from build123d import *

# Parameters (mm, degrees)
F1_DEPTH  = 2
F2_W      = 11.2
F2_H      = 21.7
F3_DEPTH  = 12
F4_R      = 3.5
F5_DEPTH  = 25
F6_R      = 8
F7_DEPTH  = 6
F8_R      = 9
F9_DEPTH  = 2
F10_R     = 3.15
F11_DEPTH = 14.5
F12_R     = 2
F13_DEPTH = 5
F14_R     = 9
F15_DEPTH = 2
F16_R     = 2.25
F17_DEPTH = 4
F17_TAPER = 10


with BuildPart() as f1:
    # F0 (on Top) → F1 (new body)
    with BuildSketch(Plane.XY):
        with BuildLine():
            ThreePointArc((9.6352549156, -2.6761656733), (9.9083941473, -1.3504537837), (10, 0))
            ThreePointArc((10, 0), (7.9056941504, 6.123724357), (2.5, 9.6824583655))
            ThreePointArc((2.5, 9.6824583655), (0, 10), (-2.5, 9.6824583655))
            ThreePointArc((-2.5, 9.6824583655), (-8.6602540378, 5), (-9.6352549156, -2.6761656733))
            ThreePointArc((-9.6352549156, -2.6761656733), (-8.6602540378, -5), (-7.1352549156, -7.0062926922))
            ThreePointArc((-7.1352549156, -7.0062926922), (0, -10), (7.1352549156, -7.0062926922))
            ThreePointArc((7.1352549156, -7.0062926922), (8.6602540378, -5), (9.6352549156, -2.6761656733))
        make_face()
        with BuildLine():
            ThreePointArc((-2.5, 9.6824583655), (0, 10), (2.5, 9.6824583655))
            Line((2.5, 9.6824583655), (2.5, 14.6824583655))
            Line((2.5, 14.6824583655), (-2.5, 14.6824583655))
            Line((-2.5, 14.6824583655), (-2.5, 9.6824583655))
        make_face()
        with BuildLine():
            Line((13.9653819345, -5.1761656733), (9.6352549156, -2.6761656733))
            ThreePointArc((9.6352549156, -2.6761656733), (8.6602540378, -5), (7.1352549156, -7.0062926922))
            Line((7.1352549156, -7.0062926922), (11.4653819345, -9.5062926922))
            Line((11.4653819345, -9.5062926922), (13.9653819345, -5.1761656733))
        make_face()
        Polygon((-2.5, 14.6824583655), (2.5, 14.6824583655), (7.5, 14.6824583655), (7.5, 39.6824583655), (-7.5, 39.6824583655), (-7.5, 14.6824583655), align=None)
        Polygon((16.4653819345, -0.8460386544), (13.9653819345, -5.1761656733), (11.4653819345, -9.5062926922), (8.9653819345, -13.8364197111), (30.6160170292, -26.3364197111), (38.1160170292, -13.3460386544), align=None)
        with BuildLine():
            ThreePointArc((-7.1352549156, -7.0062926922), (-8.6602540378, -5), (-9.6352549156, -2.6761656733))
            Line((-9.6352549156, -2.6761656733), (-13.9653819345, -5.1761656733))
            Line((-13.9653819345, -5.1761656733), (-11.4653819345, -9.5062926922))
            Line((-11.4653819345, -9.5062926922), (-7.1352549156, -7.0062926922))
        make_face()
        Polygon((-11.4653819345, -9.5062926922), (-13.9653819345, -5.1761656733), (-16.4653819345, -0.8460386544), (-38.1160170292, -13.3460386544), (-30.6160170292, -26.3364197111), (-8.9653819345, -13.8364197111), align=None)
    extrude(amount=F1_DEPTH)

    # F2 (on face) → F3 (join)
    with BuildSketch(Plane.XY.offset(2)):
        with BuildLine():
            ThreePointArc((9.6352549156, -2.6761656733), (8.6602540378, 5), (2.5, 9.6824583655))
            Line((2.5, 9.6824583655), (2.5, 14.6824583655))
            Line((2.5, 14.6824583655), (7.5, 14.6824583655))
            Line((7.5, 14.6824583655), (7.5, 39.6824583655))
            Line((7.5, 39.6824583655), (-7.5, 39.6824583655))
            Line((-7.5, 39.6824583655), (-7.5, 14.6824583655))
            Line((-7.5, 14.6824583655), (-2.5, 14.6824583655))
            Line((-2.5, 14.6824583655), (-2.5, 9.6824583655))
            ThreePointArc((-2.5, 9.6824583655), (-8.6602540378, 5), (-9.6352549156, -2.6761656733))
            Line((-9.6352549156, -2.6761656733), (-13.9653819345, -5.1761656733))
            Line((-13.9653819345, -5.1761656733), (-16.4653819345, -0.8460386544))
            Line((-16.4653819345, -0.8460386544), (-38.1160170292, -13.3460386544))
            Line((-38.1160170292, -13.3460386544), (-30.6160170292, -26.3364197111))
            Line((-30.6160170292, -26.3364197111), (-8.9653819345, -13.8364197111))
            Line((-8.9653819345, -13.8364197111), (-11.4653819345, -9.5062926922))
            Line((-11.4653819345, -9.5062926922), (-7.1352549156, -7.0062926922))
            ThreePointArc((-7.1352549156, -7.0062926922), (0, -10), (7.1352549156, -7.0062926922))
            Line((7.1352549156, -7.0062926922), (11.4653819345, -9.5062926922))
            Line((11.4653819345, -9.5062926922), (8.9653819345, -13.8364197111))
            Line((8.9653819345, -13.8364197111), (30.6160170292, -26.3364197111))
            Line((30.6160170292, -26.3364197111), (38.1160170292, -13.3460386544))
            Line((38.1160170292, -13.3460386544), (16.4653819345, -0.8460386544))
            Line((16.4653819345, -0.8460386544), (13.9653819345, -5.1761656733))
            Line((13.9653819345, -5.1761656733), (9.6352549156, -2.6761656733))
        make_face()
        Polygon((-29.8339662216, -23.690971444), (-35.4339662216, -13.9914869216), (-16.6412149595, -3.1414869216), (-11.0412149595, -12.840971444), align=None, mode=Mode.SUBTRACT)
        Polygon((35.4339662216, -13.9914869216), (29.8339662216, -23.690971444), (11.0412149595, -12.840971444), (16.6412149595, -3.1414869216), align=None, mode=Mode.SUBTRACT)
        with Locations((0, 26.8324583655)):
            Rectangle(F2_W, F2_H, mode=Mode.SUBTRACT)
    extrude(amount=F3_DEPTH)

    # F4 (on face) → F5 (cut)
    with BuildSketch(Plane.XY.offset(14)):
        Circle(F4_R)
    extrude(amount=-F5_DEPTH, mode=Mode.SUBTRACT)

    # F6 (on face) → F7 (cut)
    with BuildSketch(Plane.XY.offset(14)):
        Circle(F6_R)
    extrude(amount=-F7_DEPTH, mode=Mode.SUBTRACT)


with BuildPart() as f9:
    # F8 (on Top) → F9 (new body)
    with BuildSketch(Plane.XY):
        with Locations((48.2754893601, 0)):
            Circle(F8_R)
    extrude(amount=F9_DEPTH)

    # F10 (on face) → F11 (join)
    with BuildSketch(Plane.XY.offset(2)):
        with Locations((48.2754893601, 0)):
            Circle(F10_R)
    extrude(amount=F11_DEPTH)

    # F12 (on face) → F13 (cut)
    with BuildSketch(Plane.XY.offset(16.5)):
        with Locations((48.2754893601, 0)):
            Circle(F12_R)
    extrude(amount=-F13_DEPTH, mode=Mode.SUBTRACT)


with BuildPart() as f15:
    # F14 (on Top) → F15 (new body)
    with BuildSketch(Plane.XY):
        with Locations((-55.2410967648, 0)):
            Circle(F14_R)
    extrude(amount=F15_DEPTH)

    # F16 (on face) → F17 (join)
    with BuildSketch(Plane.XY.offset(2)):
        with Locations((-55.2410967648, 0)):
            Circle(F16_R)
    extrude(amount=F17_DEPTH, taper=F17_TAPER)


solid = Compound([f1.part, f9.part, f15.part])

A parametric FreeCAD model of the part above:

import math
import FreeCAD as App
import Part
import Sketcher
from FreeCAD import Vector
Q = App.Units.Quantity


def add_polygon(sketch, points):
    """Adds a closed chain of lines whose ends are joined by coincident constraints."""
    first, n = sketch.GeometryCount, len(points)
    for a, b in zip(points, points[1:] + points[:1]):
        sketch.addGeometry(Part.LineSegment(App.Vector(*a, 0), App.Vector(*b, 0)), False)
    for i in range(n):
        sketch.addConstraint(Sketcher.Constraint("Coincident", first + i, 2, first + (i + 1) % n, 1))

doc = App.newDocument("Part")
body = doc.addObject("PartDesign::Body", "Body")

sketch1 = body.newObject("Sketcher::SketchObject", "Sketch")
sketch1.AttachmentSupport = (doc.getObject("XY_Plane"), [""])
sketch1.MapMode = "FlatFace"
sketch1.addGeometry([
    Part.ArcOfCircle(Part.Circle(Vector(0, 0, 0), Vector(0, 0, 1), 10), math.radians(-15.522488), math.radians(0)),
    Part.ArcOfCircle(Part.Circle(Vector(0, 0, 0), Vector(0, 0, 1), 10), math.radians(0), math.radians(75.522488)),
    Part.LineSegment(Vector(2.5, 9.682458, 0), Vector(2.5, 14.682458, 0)),
    Part.LineSegment(Vector(2.5, 14.682458, 0), Vector(7.5, 14.682458, 0)),
    Part.LineSegment(Vector(7.5, 14.682458, 0), Vector(7.5, 39.682458, 0)),
    Part.LineSegment(Vector(7.5, 39.682458, 0), Vector(-7.5, 39.682458, 0)),
    Part.LineSegment(Vector(-7.5, 39.682458, 0), Vector(-7.5, 14.682458, 0)),
    Part.LineSegment(Vector(-7.5, 14.682458, 0), Vector(-2.5, 14.682458, 0)),
    Part.LineSegment(Vector(-2.5, 14.682458, 0), Vector(-2.5, 9.682458, 0)),
    Part.ArcOfCircle(Part.Circle(Vector(0, 0, 0), Vector(0, 0, 1), 10), math.radians(104.477512), math.radians(195.522488)),
    Part.LineSegment(Vector(-9.635255, -2.676166, 0), Vector(-13.965382, -5.176166, 0)),
    Part.LineSegment(Vector(-13.965382, -5.176166, 0), Vector(-16.465382, -0.846039, 0)),
    Part.LineSegment(Vector(-16.465382, -0.846039, 0), Vector(-38.116017, -13.346039, 0)),
    Part.LineSegment(Vector(-38.116017, -13.346039, 0), Vector(-30.616017, -26.33642, 0)),
    Part.LineSegment(Vector(-30.616017, -26.33642, 0), Vector(-8.965382, -13.83642, 0)),
    Part.LineSegment(Vector(-8.965382, -13.83642, 0), Vector(-11.465382, -9.506293, 0)),
    Part.LineSegment(Vector(-11.465382, -9.506293, 0), Vector(-7.135255, -7.006293, 0)),
    Part.ArcOfCircle(Part.Circle(Vector(0, 0, 0), Vector(0, 0, 1), 10), math.radians(-135.522488), math.radians(-44.477512)),
    Part.LineSegment(Vector(7.135255, -7.006293, 0), Vector(11.465382, -9.506293, 0)),
    Part.LineSegment(Vector(11.465382, -9.506293, 0), Vector(8.965382, -13.83642, 0)),
    Part.LineSegment(Vector(8.965382, -13.83642, 0), Vector(30.616017, -26.33642, 0)),
    Part.LineSegment(Vector(30.616017, -26.33642, 0), Vector(38.116017, -13.346039, 0)),
    Part.LineSegment(Vector(38.116017, -13.346039, 0), Vector(16.465382, -0.846039, 0)),
    Part.LineSegment(Vector(16.465382, -0.846039, 0), Vector(13.965382, -5.176166, 0)),
    Part.LineSegment(Vector(13.965382, -5.176166, 0), Vector(9.635255, -2.676166, 0)),
], False)
sketch1.addConstraint([
    Sketcher.Constraint("Tangent", 0, 2, 1, 1),
    Sketcher.Constraint("Coincident", 1, 2, 2, 1),
    Sketcher.Constraint("Coincident", 2, 2, 3, 1),
    Sketcher.Constraint("Coincident", 3, 2, 4, 1),
    Sketcher.Constraint("Coincident", 4, 2, 5, 1),
    Sketcher.Constraint("Coincident", 5, 2, 6, 1),
    Sketcher.Constraint("Coincident", 6, 2, 7, 1),
    Sketcher.Constraint("Coincident", 7, 2, 8, 1),
    Sketcher.Constraint("Coincident", 8, 2, 9, 1),
    Sketcher.Constraint("Coincident", 9, 2, 10, 1),
    Sketcher.Constraint("Coincident", 10, 2, 11, 1),
    Sketcher.Constraint("Coincident", 11, 2, 12, 1),
    Sketcher.Constraint("Coincident", 12, 2, 13, 1),
    Sketcher.Constraint("Coincident", 13, 2, 14, 1),
    Sketcher.Constraint("Coincident", 14, 2, 15, 1),
    Sketcher.Constraint("Coincident", 15, 2, 16, 1),
    Sketcher.Constraint("Coincident", 16, 2, 17, 1),
    Sketcher.Constraint("Coincident", 17, 2, 18, 1),
    Sketcher.Constraint("Coincident", 18, 2, 19, 1),
    Sketcher.Constraint("Coincident", 19, 2, 20, 1),
    Sketcher.Constraint("Coincident", 20, 2, 21, 1),
    Sketcher.Constraint("Coincident", 21, 2, 22, 1),
    Sketcher.Constraint("Coincident", 22, 2, 23, 1),
    Sketcher.Constraint("Coincident", 23, 2, 24, 1),
    Sketcher.Constraint("Coincident", 24, 2, 0, 1),
    Sketcher.Constraint("Vertical", 2),
    Sketcher.Constraint("Horizontal", 3),
    Sketcher.Constraint("Vertical", 4),
    Sketcher.Constraint("Horizontal", 5),
    Sketcher.Constraint("Vertical", 6),
    Sketcher.Constraint("Horizontal", 7),
    Sketcher.Constraint("Vertical", 8),
    Sketcher.Constraint("Coincident", 0, 3, -1, 1),
    Sketcher.Constraint("Coincident", 9, 3, -1, 1),
    Sketcher.Constraint("Coincident", 17, 3, -1, 1),
    Sketcher.Constraint("Equal", 0, 1),
    Sketcher.Constraint("Equal", 1, 9),
    Sketcher.Constraint("Equal", 9, 17),
    Sketcher.Constraint("Symmetric", 3, 2, 6, 2, -2),
    Sketcher.Constraint("Symmetric", 15, 2, 18, 2, -2),
    Sketcher.Constraint("Symmetric", 14, 2, 19, 2, -2),
    Sketcher.Constraint("Symmetric", 13, 2, 20, 2, -2),
    Sketcher.Constraint("Symmetric", 12, 2, 21, 2, -2),
    Sketcher.Constraint("Symmetric", 11, 2, 22, 2, -2),
    Sketcher.Constraint("Symmetric", 10, 2, 23, 2, -2),
    Sketcher.Constraint("PointOnObject", 0, 2, -1),
    Sketcher.Constraint("Perpendicular", 10, 11),
    Sketcher.Constraint("Perpendicular", 11, 12),
    Sketcher.Constraint("Perpendicular", 12, 13),
    Sketcher.Constraint("Perpendicular", 13, 14),
    Sketcher.Constraint("Perpendicular", 14, 15),
    Sketcher.Constraint("Perpendicular", 15, 16),
    Sketcher.Constraint("Perpendicular", 18, 19),
    Sketcher.Constraint("Perpendicular", 23, 24),
    Sketcher.Constraint("Horizontal", 1, 2, 8, 2),
    Sketcher.Constraint("Equal", 7, 2),
    Sketcher.Constraint("Equal", 10, 11),
    Sketcher.Constraint("Equal", 12, 14),
    Sketcher.Constraint("Equal", 11, 15),
    Sketcher.Constraint("Equal", 15, 16),
    Sketcher.Constraint("Radius", 0, 10.0),
    Sketcher.Constraint("DistanceX", 3, 1, 3, 2, 5.0),
    Sketcher.Constraint("DistanceX", 5, 2, 5, 1, 15.0),
    Sketcher.Constraint("DistanceY", 4, 1, 4, 2, 25.0),
    Sketcher.Constraint("Angle", 10, Q("-150 deg")),
    Sketcher.Constraint("Distance", 10, 5.0),
    Sketcher.Constraint("Distance", 12, 25.0),
    Sketcher.Constraint("Distance", 13, 15.0),
])
pad1 = body.newObject("PartDesign::Pad", "Pad")
pad1.Profile = sketch1
pad1.Length = 2

sketch2 = body.newObject("Sketcher::SketchObject", "Sketch001")
sketch2.AttachmentSupport = (doc.getObject("XY_Plane"), [""])
sketch2.MapMode = "FlatFace"
sketch2.AttachmentOffset = App.Placement(Vector(0, 0, 2), App.Rotation())
sketch2.addGeometry(Part.ArcOfCircle(Part.Circle(Vector(0, 0, 0), Vector(0, 0, 1), 10), math.radians(-15.522488), math.radians(75.522488)), False)
sketch2.addGeometry(Part.LineSegment(Vector(2.5, 9.682458, 0), Vector(2.5, 14.682458, 0)), False)
sketch2.addGeometry(Part.LineSegment(Vector(2.5, 14.682458, 0), Vector(7.5, 14.682458, 0)), False)
sketch2.addGeometry(Part.LineSegment(Vector(7.5, 14.682458, 0), Vector(7.5, 39.682458, 0)), False)
sketch2.addGeometry(Part.LineSegment(Vector(7.5, 39.682458, 0), Vector(-7.5, 39.682458, 0)), False)
sketch2.addGeometry(Part.LineSegment(Vector(-7.5, 39.682458, 0), Vector(-7.5, 14.682458, 0)), False)
sketch2.addGeometry(Part.LineSegment(Vector(-7.5, 14.682458, 0), Vector(-2.5, 14.682458, 0)), False)
sketch2.addGeometry(Part.LineSegment(Vector(-2.5, 14.682458, 0), Vector(-2.5, 9.682458, 0)), False)
sketch2.addGeometry(Part.ArcOfCircle(Part.Circle(Vector(0, 0, 0), Vector(0, 0, 1), 10), math.radians(104.477512), math.radians(195.522488)), False)
sketch2.addGeometry(Part.LineSegment(Vector(-9.635255, -2.676166, 0), Vector(-13.965382, -5.176166, 0)), False)
sketch2.addGeometry(Part.LineSegment(Vector(-13.965382, -5.176166, 0), Vector(-16.465382, -0.846039, 0)), False)
sketch2.addGeometry(Part.LineSegment(Vector(-16.465382, -0.846039, 0), Vector(-38.116017, -13.346039, 0)), False)
sketch2.addGeometry(Part.LineSegment(Vector(-38.116017, -13.346039, 0), Vector(-30.616017, -26.33642, 0)), False)
sketch2.addGeometry(Part.LineSegment(Vector(-30.616017, -26.33642, 0), Vector(-8.965382, -13.83642, 0)), False)
sketch2.addGeometry(Part.LineSegment(Vector(-8.965382, -13.83642, 0), Vector(-11.465382, -9.506293, 0)), False)
sketch2.addGeometry(Part.LineSegment(Vector(-11.465382, -9.506293, 0), Vector(-7.135255, -7.006293, 0)), False)
sketch2.addGeometry(Part.ArcOfCircle(Part.Circle(Vector(0, 0, 0), Vector(0, 0, 1), 10), math.radians(-135.522488), math.radians(-44.477512)), False)
sketch2.addGeometry(Part.LineSegment(Vector(7.135255, -7.006293, 0), Vector(11.465382, -9.506293, 0)), False)
sketch2.addGeometry(Part.LineSegment(Vector(11.465382, -9.506293, 0), Vector(8.965382, -13.83642, 0)), False)
sketch2.addGeometry(Part.LineSegment(Vector(8.965382, -13.83642, 0), Vector(30.616017, -26.33642, 0)), False)
sketch2.addGeometry(Part.LineSegment(Vector(30.616017, -26.33642, 0), Vector(38.116017, -13.346039, 0)), False)
sketch2.addGeometry(Part.LineSegment(Vector(38.116017, -13.346039, 0), Vector(16.465382, -0.846039, 0)), False)
sketch2.addGeometry(Part.LineSegment(Vector(16.465382, -0.846039, 0), Vector(13.965382, -5.176166, 0)), False)
sketch2.addGeometry(Part.LineSegment(Vector(13.965382, -5.176166, 0), Vector(9.635255, -2.676166, 0)), False)
add_polygon(sketch2, [(-11.041215, -12.840971), (-29.833966, -23.690971), (-35.433966, -13.991487), (-16.641215, -3.141487)])
add_polygon(sketch2, [(16.641215, -3.141487), (35.433966, -13.991487), (29.833966, -23.690971), (11.041215, -12.840971)])
add_polygon(sketch2, [(5.6, 15.982458), (-5.6, 15.982458), (-5.6, 37.682458), (5.6, 37.682458)])
sketch2.addConstraint([
    Sketcher.Constraint("Coincident", 0, 2, 1, 1),
    Sketcher.Constraint("Coincident", 1, 2, 2, 1),
    Sketcher.Constraint("Coincident", 2, 2, 3, 1),
    Sketcher.Constraint("Coincident", 3, 2, 4, 1),
    Sketcher.Constraint("Coincident", 4, 2, 5, 1),
    Sketcher.Constraint("Coincident", 5, 2, 6, 1),
    Sketcher.Constraint("Coincident", 6, 2, 7, 1),
    Sketcher.Constraint("Coincident", 7, 2, 8, 1),
    Sketcher.Constraint("Coincident", 8, 2, 9, 1),
    Sketcher.Constraint("Coincident", 9, 2, 10, 1),
    Sketcher.Constraint("Coincident", 10, 2, 11, 1),
    Sketcher.Constraint("Coincident", 11, 2, 12, 1),
    Sketcher.Constraint("Coincident", 12, 2, 13, 1),
    Sketcher.Constraint("Coincident", 13, 2, 14, 1),
    Sketcher.Constraint("Coincident", 14, 2, 15, 1),
    Sketcher.Constraint("Coincident", 15, 2, 16, 1),
    Sketcher.Constraint("Coincident", 16, 2, 17, 1),
    Sketcher.Constraint("Coincident", 17, 2, 18, 1),
    Sketcher.Constraint("Coincident", 18, 2, 19, 1),
    Sketcher.Constraint("Coincident", 19, 2, 20, 1),
    Sketcher.Constraint("Coincident", 20, 2, 21, 1),
    Sketcher.Constraint("Coincident", 21, 2, 22, 1),
    Sketcher.Constraint("Coincident", 22, 2, 23, 1),
    Sketcher.Constraint("Coincident", 23, 2, 0, 1),
    Sketcher.Constraint("Vertical", 1),
    Sketcher.Constraint("Horizontal", 2),
    Sketcher.Constraint("Vertical", 3),
    Sketcher.Constraint("Horizontal", 4),
    Sketcher.Constraint("Vertical", 5),
    Sketcher.Constraint("Horizontal", 6),
    Sketcher.Constraint("Vertical", 7),
    Sketcher.Constraint("Horizontal", 32),
    Sketcher.Constraint("Vertical", 33),
    Sketcher.Constraint("Horizontal", 34),
    Sketcher.Constraint("Vertical", 35),
    Sketcher.Constraint("Coincident", 0, 3, -1, 1),
    Sketcher.Constraint("Coincident", 8, 3, -1, 1),
    Sketcher.Constraint("Coincident", 16, 3, -1, 1),
    Sketcher.Constraint("Equal", 0, 8),
    Sketcher.Constraint("Equal", 8, 16),
    Sketcher.Constraint("Symmetric", 2, 2, 5, 2, -2),
    Sketcher.Constraint("Symmetric", 14, 2, 17, 2, -2),
    Sketcher.Constraint("Symmetric", 13, 2, 18, 2, -2),
    Sketcher.Constraint("Symmetric", 12, 2, 19, 2, -2),
    Sketcher.Constraint("Symmetric", 11, 2, 20, 2, -2),
    Sketcher.Constraint("Symmetric", 10, 2, 21, 2, -2),
    Sketcher.Constraint("Symmetric", 9, 2, 22, 2, -2),
    Sketcher.Constraint("Symmetric", 25, 2, 28, 2, -2),
    Sketcher.Constraint("Symmetric", 24, 2, 29, 2, -2),
    Sketcher.Constraint("Symmetric", 27, 2, 30, 2, -2),
    Sketcher.Constraint("Symmetric", 26, 2, 31, 2, -2),
    Sketcher.Constraint("Perpendicular", 9, 10),
    Sketcher.Constraint("Perpendicular", 10, 11),
    Sketcher.Constraint("Perpendicular", 11, 12),
    Sketcher.Constraint("Perpendicular", 12, 13),
    Sketcher.Constraint("Perpendicular", 13, 14),
    Sketcher.Constraint("Perpendicular", 14, 15),
    Sketcher.Constraint("Perpendicular", 17, 18),
    Sketcher.Constraint("Perpendicular", 22, 23),
    Sketcher.Constraint("Parallel", 15, 24),
    Sketcher.Constraint("Perpendicular", 24, 25),
    Sketcher.Constraint("Perpendicular", 25, 26),
    Sketcher.Constraint("Perpendicular", 26, 27),
    Sketcher.Constraint("Horizontal", 0, 2, 7, 2),
    Sketcher.Constraint("Equal", 6, 1),
    Sketcher.Constraint("Equal", 9, 10),
    Sketcher.Constraint("Equal", 11, 13),
    Sketcher.Constraint("Equal", 10, 14),
    Sketcher.Constraint("Equal", 14, 15),
    Sketcher.Constraint("Radius", 0, 10.0),
    Sketcher.Constraint("DistanceX", 2, 1, 2, 2, 5.0),
    Sketcher.Constraint("DistanceX", 4, 2, 4, 1, 15.0),
    Sketcher.Constraint("DistanceY", 3, 1, 3, 2, 25.0),
    Sketcher.Constraint("Angle", 9, Q("-150 deg")),
    Sketcher.Constraint("Distance", 9, 5.0),
    Sketcher.Constraint("Distance", 11, 25.0),
    Sketcher.Constraint("Distance", 12, 15.0),
    Sketcher.Constraint("DistanceX", 32, 2, 32, 1, 11.2),
    Sketcher.Constraint("DistanceY", 33, 1, 33, 2, 21.7),
    Sketcher.Constraint("DistanceY", 33, 2, 4, 2, 2.0),
    Sketcher.Constraint("Distance", 24, 21.7),
    Sketcher.Constraint("Distance", 25, 11.2),
    Sketcher.Constraint("DistanceX", 32, 2, -1, 1, 5.6),
    Sketcher.Constraint("DistanceY", 24, 2, -1, 1, 23.690971),
    Sketcher.Constraint("DistanceX", 12, 2, 24, 2, 0.782051),
])
pad2 = body.newObject("PartDesign::Pad", "Pad001")
pad2.Profile = sketch2
pad2.Length = 12

sketch3 = body.newObject("Sketcher::SketchObject", "Sketch002")
sketch3.AttachmentSupport = (doc.getObject("XY_Plane"), [""])
sketch3.MapMode = "FlatFace"
sketch3.AttachmentOffset = App.Placement(Vector(0, 0, 14), App.Rotation())
sketch3.addGeometry(Part.Circle(Vector(0, 0, 0), Vector(0, 0, 1), 3.5), False)
sketch3.addConstraint([
    Sketcher.Constraint("Coincident", 0, 3, -1, 1),
    Sketcher.Constraint("Diameter", 0, 7.0),
])
pocket1 = body.newObject("PartDesign::Pocket", "Pocket")
pocket1.Profile = sketch3
pocket1.Length = 25

sketch4 = body.newObject("Sketcher::SketchObject", "Sketch003")
sketch4.AttachmentSupport = (doc.getObject("XY_Plane"), [""])
sketch4.MapMode = "FlatFace"
sketch4.AttachmentOffset = App.Placement(Vector(0, 0, 14), App.Rotation())
sketch4.addGeometry(Part.Circle(Vector(0, 0, 0), Vector(0, 0, 1), 8), False)
sketch4.addConstraint([
    Sketcher.Constraint("Coincident", 0, 3, -1, 1),
    Sketcher.Constraint("Diameter", 0, 16.0),
])
pocket2 = body.newObject("PartDesign::Pocket", "Pocket001")
pocket2.Profile = sketch4
pocket2.Length = 6
body2 = doc.addObject("PartDesign::Body", "Body001")

sketch5 = body2.newObject("Sketcher::SketchObject", "Sketch004")
sketch5.AttachmentSupport = (doc.getObject("XY_Plane001"), [""])
sketch5.MapMode = "FlatFace"
sketch5.addGeometry(Part.Circle(Vector(48.275489, 0, 0), Vector(0, 0, 1), 9), False)
sketch5.addConstraint([
    Sketcher.Constraint("PointOnObject", 0, 3, -1),
    Sketcher.Constraint("Diameter", 0, 18.0),
    Sketcher.Constraint("DistanceX", -1, 1, 0, 3, 48.275489),
])
pad3 = body2.newObject("PartDesign::Pad", "Pad002")
pad3.Profile = sketch5
pad3.Length = 2

sketch6 = body2.newObject("Sketcher::SketchObject", "Sketch005")
sketch6.AttachmentSupport = (doc.getObject("XY_Plane001"), [""])
sketch6.MapMode = "FlatFace"
sketch6.AttachmentOffset = App.Placement(Vector(0, 0, 2), App.Rotation())
sketch6.addGeometry(Part.Circle(Vector(48.275489, 0, 0), Vector(0, 0, 1), 3.15), False)
sketch6.addConstraint([
    Sketcher.Constraint("PointOnObject", 0, 3, -1),
    Sketcher.Constraint("Diameter", 0, 6.3),
    Sketcher.Constraint("DistanceX", -1, 1, 0, 3, 48.275489),
])
pad4 = body2.newObject("PartDesign::Pad", "Pad003")
pad4.Profile = sketch6
pad4.Length = 14.5

sketch7 = body2.newObject("Sketcher::SketchObject", "Sketch006")
sketch7.AttachmentSupport = (doc.getObject("XY_Plane001"), [""])
sketch7.MapMode = "FlatFace"
sketch7.AttachmentOffset = App.Placement(Vector(0, 0, 16.5), App.Rotation())
sketch7.addGeometry(Part.Circle(Vector(48.275489, 0, 0), Vector(0, 0, 1), 2), False)
sketch7.addConstraint([
    Sketcher.Constraint("PointOnObject", 0, 3, -1),
    Sketcher.Constraint("Diameter", 0, 4.0),
    Sketcher.Constraint("DistanceX", -1, 1, 0, 3, 48.275489),
])
pocket3 = body2.newObject("PartDesign::Pocket", "Pocket002")
pocket3.Profile = sketch7
pocket3.Length = 5
body3 = doc.addObject("PartDesign::Body", "Body002")

sketch8 = body3.newObject("Sketcher::SketchObject", "Sketch007")
sketch8.AttachmentSupport = (doc.getObject("XY_Plane002"), [""])
sketch8.MapMode = "FlatFace"
sketch8.addGeometry(Part.Circle(Vector(-55.241097, 0, 0), Vector(0, 0, 1), 9), False)
sketch8.addConstraint([
    Sketcher.Constraint("PointOnObject", 0, 3, -1),
    Sketcher.Constraint("Diameter", 0, 18.0),
    Sketcher.Constraint("DistanceX", 0, 3, -1, 1, 55.241097),
])
pad5 = body3.newObject("PartDesign::Pad", "Pad004")
pad5.Profile = sketch8
pad5.Length = 2

sketch9 = body3.newObject("Sketcher::SketchObject", "Sketch008")
sketch9.AttachmentSupport = (doc.getObject("XY_Plane002"), [""])
sketch9.MapMode = "FlatFace"
sketch9.AttachmentOffset = App.Placement(Vector(0, 0, 2), App.Rotation())
sketch9.addGeometry(Part.Circle(Vector(-55.241097, 0, 0), Vector(0, 0, 1), 2.25), False)
sketch9.addConstraint([
    Sketcher.Constraint("PointOnObject", 0, 3, -1),
    Sketcher.Constraint("Diameter", 0, 4.5),
    Sketcher.Constraint("DistanceX", 0, 3, -1, 1, 55.241097),
])
pad6 = body3.newObject("PartDesign::Pad", "Pad005")
pad6.Profile = sketch9
pad6.Length = 4
pad6.TaperAngle = -10

doc.recompute()
